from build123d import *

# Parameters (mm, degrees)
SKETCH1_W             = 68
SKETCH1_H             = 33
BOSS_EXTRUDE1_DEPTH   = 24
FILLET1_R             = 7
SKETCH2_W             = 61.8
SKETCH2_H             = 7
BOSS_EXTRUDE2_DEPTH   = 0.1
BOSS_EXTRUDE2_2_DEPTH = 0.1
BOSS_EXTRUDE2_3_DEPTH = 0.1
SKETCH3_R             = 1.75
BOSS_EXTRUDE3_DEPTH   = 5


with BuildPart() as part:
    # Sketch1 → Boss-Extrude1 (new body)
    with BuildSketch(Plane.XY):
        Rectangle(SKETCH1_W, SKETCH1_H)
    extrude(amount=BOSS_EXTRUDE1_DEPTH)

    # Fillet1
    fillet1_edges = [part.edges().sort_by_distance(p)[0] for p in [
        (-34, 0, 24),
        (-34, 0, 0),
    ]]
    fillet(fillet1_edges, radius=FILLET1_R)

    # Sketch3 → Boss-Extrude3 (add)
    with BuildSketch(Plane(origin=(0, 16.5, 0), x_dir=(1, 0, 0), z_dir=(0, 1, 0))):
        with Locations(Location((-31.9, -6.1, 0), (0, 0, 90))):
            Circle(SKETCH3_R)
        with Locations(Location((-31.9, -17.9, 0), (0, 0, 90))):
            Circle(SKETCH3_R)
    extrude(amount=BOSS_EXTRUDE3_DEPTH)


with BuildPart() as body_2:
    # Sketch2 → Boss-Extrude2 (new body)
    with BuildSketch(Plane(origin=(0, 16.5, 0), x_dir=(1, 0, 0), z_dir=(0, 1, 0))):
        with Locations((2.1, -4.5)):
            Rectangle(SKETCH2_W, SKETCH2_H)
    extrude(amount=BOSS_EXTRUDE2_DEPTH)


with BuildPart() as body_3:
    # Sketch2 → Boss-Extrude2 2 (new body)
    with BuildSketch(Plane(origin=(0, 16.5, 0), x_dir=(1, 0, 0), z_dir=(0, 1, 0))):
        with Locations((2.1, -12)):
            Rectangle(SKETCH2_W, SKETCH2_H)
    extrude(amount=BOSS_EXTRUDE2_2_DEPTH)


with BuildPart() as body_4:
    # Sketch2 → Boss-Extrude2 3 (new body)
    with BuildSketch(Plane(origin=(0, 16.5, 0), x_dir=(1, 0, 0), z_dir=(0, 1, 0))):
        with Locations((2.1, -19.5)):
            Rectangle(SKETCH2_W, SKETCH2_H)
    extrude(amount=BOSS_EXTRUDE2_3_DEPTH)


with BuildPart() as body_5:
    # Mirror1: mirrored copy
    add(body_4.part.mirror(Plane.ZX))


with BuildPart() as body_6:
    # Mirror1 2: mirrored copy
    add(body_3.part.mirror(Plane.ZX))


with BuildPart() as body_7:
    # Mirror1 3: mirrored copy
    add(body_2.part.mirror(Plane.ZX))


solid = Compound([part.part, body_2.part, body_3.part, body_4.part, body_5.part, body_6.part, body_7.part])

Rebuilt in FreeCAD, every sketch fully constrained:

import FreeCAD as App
import Part
import Sketcher


def edges_at(feature, points):
    """Names of the edges that pass closest to the given points."""
    edges = feature.Shape.Edges
    near = lambda p: min(range(len(edges)), key=lambda i: edges[i].distToShape(Part.Vertex(*p))[0])
    return sorted({f"Edge{near(p) + 1}" for p in points})

doc = App.newDocument("Part")
body = doc.addObject("PartDesign::Body", "Body")

# Sketch on XY plane
sketch1 = body.newObject("Sketcher::SketchObject", "Sketch")
sketch1.AttachmentSupport = (doc.getObject("XY_Plane"), [""])
sketch1.MapMode = "FlatFace"
sketch1.addGeometry([
    Part.LineSegment(App.Vector(-34, 16, 0), App.Vector(-34, -16, 0)),
    Part.LineSegment(App.Vector(-34, -16, 0), App.Vector(34, -16, 0)),
    Part.LineSegment(App.Vector(34, -16, 0), App.Vector(34, 16, 0)),
    Part.LineSegment(App.Vector(34, 16, 0), App.Vector(-34, 16, 0)),
], False)
sketch1.addConstraint([
    Sketcher.Constraint("Coincident", 0, 2, 1, 1),
    Sketcher.Constraint("Coincident", 1, 2, 2, 1),
    Sketcher.Constraint("Coincident", 2, 2, 3, 1),
    Sketcher.Constraint("Coincident", 3, 2, 0, 1),
    Sketcher.Constraint("Vertical", 0),
    Sketcher.Constraint("Horizontal", 1),
    Sketcher.Constraint("Vertical", 2),
    Sketcher.Constraint("Horizontal", 3),
    Sketcher.Constraint("Symmetric", 0, 2, 2, 2, -1, 1),
    Sketcher.Constraint("DistanceX", 1, 1, 1, 2, 68.0),
    Sketcher.Constraint("DistanceY", 0, 2, 0, 1, 33.0),
])
pad1 = body.newObject("PartDesign::Pad", "Pad")
pad1.Profile = sketch1
pad1.Length = 24
doc.recompute()

fillet = body.newObject("PartDesign::Fillet", "Fillet")
fillet.Base = (pad1, edges_at(pad1, [(-34, 0, 24), (-34, 0, 0)]))
fillet.Radius = 7

# Sketch on XZ plane
sketch2 = body.newObject("Sketcher::SketchObject", "Sketch001")
sketch2.AttachmentSupport = (doc.getObject("XZ_Plane"), [""])
sketch2.MapMode = "FlatFace"
sketch2.AttachmentOffset = App.Placement(App.Vector(0, 0, -16.5), App.Rotation())
sketch2.addGeometry([
    Part.Circle(App.Vector(-31.9, 6.1, 0), App.Vector(0, 0, 1), 1.8),
    Part.Circle(App.Vector(-31.9, 17.9, 0), App.Vector(0, 0, 1), 1.8),
], False)
sketch2.addConstraint([
    Sketcher.Constraint("Equal", 0, 1),
    Sketcher.Constraint("Vertical", 0, 3, 1, 3),
    Sketcher.Constraint("Diameter", 0, 3.5),
    Sketcher.Constraint("DistanceX", 0, 3, -1, 1, 31.9),
    Sketcher.Constraint("DistanceY", -1, 1, 0, 3, 6.1),
    Sketcher.Constraint("DistanceY", -1, 1, 1, 3, 17.9),
])
pad2 = body.newObject("PartDesign::Pad", "Pad001")
pad2.Profile = sketch2
pad2.Length = 5
pad2.Reversed = True
body2 = doc.addObject("PartDesign::Body", "Body001")

# Sketch on XZ plane
sketch3 = body2.newObject("Sketcher::SketchObject", "Sketch002")
sketch3.AttachmentSupport = (doc.getObject("XZ_Plane001"), [""])
sketch3.MapMode = "FlatFace"
sketch3.AttachmentOffset = App.Placement(App.Vector(0, 0, -16.5), App.Rotation())
sketch3.addGeometry([
    Part.LineSegment(App.Vector(-29, 1, 0), App.Vector(-29, 8, 0)),
    Part.LineSegment(App.Vector(-29, 8, 0), App.Vector(33, 8, 0)),
    Part.LineSegment(App.Vector(33, 8, 0), App.Vector(33, 1, 0)),
    Part.LineSegment(App.Vector(33, 1, 0), App.Vector(-29, 1, 0)),
], False)
sketch3.addConstraint([
    Sketcher.Constraint("Coincident", 0, 2, 1, 1),
    Sketcher.Constraint("Coincident", 1, 2, 2, 1),
    Sketcher.Constraint("Coincident", 2, 2, 3, 1),
    Sketcher.Constraint("Coincident", 3, 2, 0, 1),
    Sketcher.Constraint("Vertical", 0),
    Sketcher.Constraint("Horizontal", 1),
    Sketcher.Constraint("Vertical", 2),
    Sketcher.Constraint("Horizontal", 3),
    Sketcher.Constraint("DistanceY", 0, 1, 0, 2, 7.0),
    Sketcher.Constraint("DistanceX", 1, 1, 1, 2, 61.8),
    Sketcher.Constraint("DistanceY", -1, 1, 0, 2, 8.0),
    Sketcher.Constraint("DistanceX", -1, 1, 1, 2, 33.0),
])
pad3 = body2.newObject("PartDesign::Pad", "Pad002")
pad3.Profile = sketch3
pad3.Length = 0.1
pad3.Reversed = True
body3 = doc.addObject("PartDesign::Body", "Body002")

# Sketch on XZ plane
sketch4 = body3.newObject("Sketcher::SketchObject", "Sketch003")
sketch4.AttachmentSupport = (doc.getObject("XZ_Plane002"), [""])
sketch4.MapMode = "FlatFace"
sketch4.AttachmentOffset = App.Placement(App.Vector(0, 0, -16.5), App.Rotation())
sketch4.addGeometry([
    Part.LineSegment(App.Vector(-29, 8, 0), App.Vector(-29, 16, 0)),
    Part.LineSegment(App.Vector(-29, 16, 0), App.Vector(33, 16, 0)),
    Part.LineSegment(App.Vector(33, 16, 0), App.Vector(33, 8, 0)),
    Part.LineSegment(App.Vector(33, 8, 0), App.Vector(-29, 8, 0)),
], False)
sketch4.addConstraint([
    Sketcher.Constraint("Coincident", 0, 2, 1, 1),
    Sketcher.Constraint("Coincident", 1, 2, 2, 1),
    Sketcher.Constraint("Coincident", 2, 2, 3, 1),
    Sketcher.Constraint("Coincident", 3, 2, 0, 1),
    Sketcher.Constraint("Vertical", 0),
    Sketcher.Constraint("Horizontal", 1),
    Sketcher.Constraint("Vertical", 2),
    Sketcher.Constraint("Horizontal", 3),
    Sketcher.Constraint("DistanceY", 0, 1, 0, 2, 7.0),
    Sketcher.Constraint("DistanceX", 1, 1, 1, 2, 61.8),
    Sketcher.Constraint("DistanceX", -1, 1, 1, 2, 33.0),
    Sketcher.Constraint("DistanceY", -1, 1, 0, 2, 15.5),
])
pad4 = body3.newObject("PartDesign::Pad", "Pad003")
pad4.Profile = sketch4
pad4.Length = 0.1
pad4.Reversed = True
body4 = doc.addObject("PartDesign::Body", "Body003")

# Sketch on XZ plane
sketch5 = body4.newObject("Sketcher::SketchObject", "Sketch004")
sketch5.AttachmentSupport = (doc.getObject("XZ_Plane003"), [""])
sketch5.MapMode = "FlatFace"
sketch5.AttachmentOffset = App.Placement(App.Vector(0, 0, -16.5), App.Rotation())
sketch5.addGeometry([
    Part.LineSegment(App.Vector(-29, 16, 0), App.Vector(-29, 23, 0)),
    Part.LineSegment(App.Vector(-29, 23, 0), App.Vector(33, 23, 0)),
    Part.LineSegment(App.Vector(33, 23, 0), App.Vector(33, 16, 0)),
    Part.LineSegment(App.Vector(33, 16, 0), App.Vector(-29, 16, 0)),
], False)
sketch5.addConstraint([
    Sketcher.Constraint("Coincident", 0, 2, 1, 1),
    Sketcher.Constraint("Coincident", 1, 2, 2, 1),
    Sketcher.Constraint("Coincident", 2, 2, 3, 1),
    Sketcher.Constraint("Coincident", 3, 2, 0, 1),
    Sketcher.Constraint("Vertical", 0),
    Sketcher.Constraint("Horizontal", 1),
    Sketcher.Constraint("Vertical", 2),
    Sketcher.Constraint("Horizontal", 3),
    Sketcher.Constraint("DistanceY", 0, 1, 0, 2, 7.0),
    Sketcher.Constraint("DistanceX", 1, 1, 1, 2, 61.8),
    Sketcher.Constraint("DistanceY", -1, 1, 0, 2, 23.0),
    Sketcher.Constraint("DistanceX", -1, 1, 1, 2, 33.0),
])
pad5 = body4.newObject("PartDesign::Pad", "Pad004")
pad5.Profile = sketch5
pad5.Length = 0.1
pad5.Reversed = True
body5 = doc.addObject("PartDesign::Body", "Body004")
doc.recompute()

mirroring = doc.addObject("Part::Mirroring", "Mirroring")
mirroring.Source = body4
mirroring.Base = App.Vector(0, 0, 0)
mirroring.Normal = App.Vector(0, 1, 0)
body5.BaseFeature = mirroring
doc.recompute()
body6 = doc.addObject("PartDesign::Body", "Body005")
doc.recompute()

mirroring2 = doc.addObject("Part::Mirroring", "Mirroring001")
mirroring2.Source = body3
mirroring2.Base = App.Vector(0, 0, 0)
mirroring2.Normal = App.Vector(0, 1, 0)
body6.BaseFeature = mirroring2
doc.recompute()
body7 = doc.addObject("PartDesign::Body", "Body006")
doc.recompute()

mirroring3 = doc.addObject("Part::Mirroring", "Mirroring002")
mirroring3.Source = body2
mirroring3.Base = App.Vector(0, 0, 0)
mirroring3.Normal = App.Vector(0, 1, 0)
body7.BaseFeature = mirroring3
doc.recompute()
mirroring.Visibility = False
mirroring2.Visibility = False
mirroring3.Visibility = False

doc.recompute()
